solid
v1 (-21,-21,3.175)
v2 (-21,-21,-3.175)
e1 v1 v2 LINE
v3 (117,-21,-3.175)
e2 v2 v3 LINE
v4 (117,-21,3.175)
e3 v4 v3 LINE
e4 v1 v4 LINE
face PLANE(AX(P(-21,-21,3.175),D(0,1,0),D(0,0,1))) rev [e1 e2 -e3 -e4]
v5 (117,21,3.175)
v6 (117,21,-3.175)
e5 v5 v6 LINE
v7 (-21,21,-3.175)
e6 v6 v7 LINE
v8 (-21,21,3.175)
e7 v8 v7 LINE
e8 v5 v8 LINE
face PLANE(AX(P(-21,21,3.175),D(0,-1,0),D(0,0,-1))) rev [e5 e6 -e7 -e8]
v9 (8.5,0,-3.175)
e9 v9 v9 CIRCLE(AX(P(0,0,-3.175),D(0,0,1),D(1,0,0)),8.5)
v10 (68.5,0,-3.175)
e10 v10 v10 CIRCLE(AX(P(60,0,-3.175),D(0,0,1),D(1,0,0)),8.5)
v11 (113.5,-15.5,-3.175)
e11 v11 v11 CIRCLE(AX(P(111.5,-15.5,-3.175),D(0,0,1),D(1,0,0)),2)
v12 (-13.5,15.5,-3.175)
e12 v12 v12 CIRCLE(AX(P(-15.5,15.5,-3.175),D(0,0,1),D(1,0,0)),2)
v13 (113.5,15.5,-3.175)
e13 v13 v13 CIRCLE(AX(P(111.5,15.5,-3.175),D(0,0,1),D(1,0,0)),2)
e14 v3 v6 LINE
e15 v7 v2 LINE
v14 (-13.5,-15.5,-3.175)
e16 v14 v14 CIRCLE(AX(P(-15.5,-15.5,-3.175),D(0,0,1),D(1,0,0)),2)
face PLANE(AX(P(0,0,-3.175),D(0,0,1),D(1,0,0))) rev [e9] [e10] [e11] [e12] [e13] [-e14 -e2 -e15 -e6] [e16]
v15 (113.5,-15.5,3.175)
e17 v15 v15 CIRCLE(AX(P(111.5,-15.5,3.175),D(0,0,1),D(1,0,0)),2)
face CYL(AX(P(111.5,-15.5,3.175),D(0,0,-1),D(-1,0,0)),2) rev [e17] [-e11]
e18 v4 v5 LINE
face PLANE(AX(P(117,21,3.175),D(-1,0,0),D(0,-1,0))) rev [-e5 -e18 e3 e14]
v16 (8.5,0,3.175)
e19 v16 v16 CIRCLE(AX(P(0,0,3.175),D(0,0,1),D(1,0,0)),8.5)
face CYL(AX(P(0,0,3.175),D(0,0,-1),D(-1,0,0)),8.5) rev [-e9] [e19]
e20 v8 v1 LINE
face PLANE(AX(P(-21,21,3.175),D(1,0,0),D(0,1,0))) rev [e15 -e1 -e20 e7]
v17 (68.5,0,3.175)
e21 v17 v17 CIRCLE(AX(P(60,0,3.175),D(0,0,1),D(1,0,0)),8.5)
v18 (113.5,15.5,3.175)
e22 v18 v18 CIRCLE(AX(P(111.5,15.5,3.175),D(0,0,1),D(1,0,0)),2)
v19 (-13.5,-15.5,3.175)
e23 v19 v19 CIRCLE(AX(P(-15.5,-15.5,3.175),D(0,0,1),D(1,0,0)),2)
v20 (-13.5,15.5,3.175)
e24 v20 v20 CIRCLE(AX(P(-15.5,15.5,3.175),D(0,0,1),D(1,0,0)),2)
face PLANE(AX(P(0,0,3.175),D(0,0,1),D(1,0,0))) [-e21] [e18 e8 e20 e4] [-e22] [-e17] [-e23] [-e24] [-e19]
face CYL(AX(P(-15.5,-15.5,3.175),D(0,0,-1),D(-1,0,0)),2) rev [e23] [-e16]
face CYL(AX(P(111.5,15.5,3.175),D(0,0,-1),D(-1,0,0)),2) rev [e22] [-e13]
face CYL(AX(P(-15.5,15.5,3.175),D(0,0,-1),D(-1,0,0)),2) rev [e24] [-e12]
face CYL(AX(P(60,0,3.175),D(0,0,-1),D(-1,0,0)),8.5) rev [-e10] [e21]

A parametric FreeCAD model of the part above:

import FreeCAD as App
import Part
import Sketcher

V = App.Vector
Q = App.Units.Quantity


def add_polygon(sketch, points):
    """Adds a closed chain of lines whose ends are joined by coincident constraints."""
    first, n = sketch.GeometryCount, len(points)
    for a, b in zip(points, points[1:] + points[:1]):
        sketch.addGeometry(Part.LineSegment(App.Vector(*a, 0), App.Vector(*b, 0)), False)
    for i in range(n):
        sketch.addConstraint(Sketcher.Constraint("Coincident", first + i, 2, first + (i + 1) % n, 1))

doc = App.newDocument("Part")
body = doc.addObject("PartDesign::Body", "Body")

sketch1 = body.newObject("Sketcher::SketchObject", "Sketch")
sketch1.AttachmentSupport = (doc.getObject("XY_Plane"), [""])
sketch1.MapMode = "FlatFace"
add_polygon(sketch1, [(-21, 21), (-21, -21), (117, -21), (117, 21)])
sketch1.addGeometry(Part.Circle(V(-15.5, -15.5, 0), V(0, 0, 1), 2), False)
sketch1.addGeometry(Part.Circle(V(111.5, -15.5, 0), V(0, 0, 1), 2), False)
sketch1.addGeometry(Part.Circle(V(0, 0, 0), V(0, 0, 1), 8.5), False)
sketch1.addGeometry(Part.Circle(V(-15.5, 15.5, 0), V(0, 0, 1), 2), False)
sketch1.addGeometry(Part.Circle(V(60, 0, 0), V(0, 0, 1), 8.5), False)
sketch1.addGeometry(Part.Circle(V(111.5, 15.5, 0), V(0, 0, 1), 2), False)
sketch1.addConstraint([
    Sketcher.Constraint("Vertical", 0),
    Sketcher.Constraint("Horizontal", 1),
    Sketcher.Constraint("Vertical", 2),
    Sketcher.Constraint("Horizontal", 3),
    Sketcher.Constraint("Coincident", 6, 3, -1, 1),
    Sketcher.Constraint("Equal", 4, 5),
    Sketcher.Constraint("Equal", 5, 7),
    Sketcher.Constraint("Equal", 6, 8),
    Sketcher.Constraint("Equal", 7, 9),
    Sketcher.Constraint("Symmetric", 4, 3, 7, 3, -1),
    Sketcher.Constraint("Symmetric", 5, 3, 9, 3, -1),
    Sketcher.Constraint("PointOnObject", 8, 3, -1),
    Sketcher.Constraint("Horizontal", 4, 3, 5, 3),
    Sketcher.Constraint("Diameter", 4, Q("4 mm")),
    Sketcher.Constraint("Diameter", 6, Q("17 mm")),
    Sketcher.Constraint("DistanceX", 1, 1, 1, 2, Q("138 mm")),
    Sketcher.Constraint("DistanceY", 0, 2, 0, 1, Q("42 mm")),
    Sketcher.Constraint("DistanceX", -1, 1, 8, 3, Q("60 mm")),
    Sketcher.Constraint("DistanceX", 0, 2, -1, 1, Q("21 mm")),
    Sketcher.Constraint("DistanceY", 0, 2, -1, 1, Q("21 mm")),
    Sketcher.Constraint("DistanceX", 4, 3, 5, 3, Q("127 mm")),
    Sketcher.Constraint("DistanceY", 4, 3, 7, 3, Q("31 mm")),
    Sketcher.Constraint("DistanceX", 4, 3, -1, 1, Q("15.5 mm")),
])
pad1 = body.newObject("PartDesign::Pad", "Pad")
pad1.Profile = sketch1
pad1.Length = 6.35
pad1.Midplane = True

doc.recompute()
